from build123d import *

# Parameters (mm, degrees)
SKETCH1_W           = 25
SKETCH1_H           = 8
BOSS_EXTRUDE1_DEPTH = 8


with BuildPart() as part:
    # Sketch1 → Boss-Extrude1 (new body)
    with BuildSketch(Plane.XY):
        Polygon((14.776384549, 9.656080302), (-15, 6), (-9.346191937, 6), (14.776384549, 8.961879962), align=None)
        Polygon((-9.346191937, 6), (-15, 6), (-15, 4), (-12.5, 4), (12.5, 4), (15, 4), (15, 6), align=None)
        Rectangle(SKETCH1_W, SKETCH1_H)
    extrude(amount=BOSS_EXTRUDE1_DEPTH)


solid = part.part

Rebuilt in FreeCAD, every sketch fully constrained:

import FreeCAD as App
import Part
import Sketcher

V = App.Vector
Q = App.Units.Quantity

doc = App.newDocument("Part")
body = doc.addObject("PartDesign::Body", "Body")

# Sketch on XY plane
sketch1 = body.newObject("Sketcher::SketchObject", "Sketch")
sketch1.AttachmentSupport = (doc.getObject("XY_Plane"), [""])
sketch1.MapMode = "FlatFace"
sketch1.addGeometry([
    Part.LineSegment(V(14.8, 9.7, 0), V(-15, 6, 0)),  # 0
    Part.LineSegment(V(-15, 6, 0), V(-15, 4, 0)),  # 1
    Part.LineSegment(V(-15, 4, 0), V(-12.5, 4, 0)),  # 2
    Part.LineSegment(V(-12.5, 4, 0), V(-12.5, -4, 0)),  # 3
    Part.LineSegment(V(-12.5, -4, 0), V(12.5, -4, 0)),  # 4
    Part.LineSegment(V(12.5, -4, 0), V(12.5, 4, 0)),  # 5
    Part.LineSegment(V(12.5, 4, 0), V(15, 4, 0)),  # 6
    Part.LineSegment(V(15, 4, 0), V(15, 6, 0)),  # 7
    Part.LineSegment(V(15, 6, 0), V(-9.3, 6, 0)),  # 8
    Part.LineSegment(V(-9.3, 6, 0), V(14.8, 9, 0)),  # 9
    Part.LineSegment(V(14.8, 9, 0), V(14.8, 9.7, 0)),  # 10
], False)
sketch1.addConstraint([
    Sketcher.Constraint("Coincident", 0, 2, 1, 1),
    Sketcher.Constraint("Coincident", 1, 2, 2, 1),
    Sketcher.Constraint("Coincident", 2, 2, 3, 1),
    Sketcher.Constraint("Coincident", 3, 2, 4, 1),
    Sketcher.Constraint("Coincident", 4, 2, 5, 1),
    Sketcher.Constraint("Coincident", 5, 2, 6, 1),
    Sketcher.Constraint("Coincident", 6, 2, 7, 1),
    Sketcher.Constraint("Coincident", 7, 2, 8, 1),
    Sketcher.Constraint("Coincident", 8, 2, 9, 1),
    Sketcher.Constraint("Coincident", 9, 2, 10, 1),
    Sketcher.Constraint("Coincident", 10, 2, 0, 1),
    Sketcher.Constraint("Vertical", 1),
    Sketcher.Constraint("Horizontal", 2),
    Sketcher.Constraint("Vertical", 3),
    Sketcher.Constraint("Horizontal", 4),
    Sketcher.Constraint("Vertical", 5),
    Sketcher.Constraint("Horizontal", 6),
    Sketcher.Constraint("Vertical", 7),
    Sketcher.Constraint("Horizontal", 8),
    Sketcher.Constraint("Vertical", 10),
    Sketcher.Constraint("Symmetric", 2, 2, 4, 2, -1, 1),
    Sketcher.Constraint("Symmetric", 1, 2, 6, 2, -2),
    Sketcher.Constraint("Parallel", 0, 9),
    Sketcher.Constraint("Horizontal", 0, 2, 7, 2),
    Sketcher.Constraint("DistanceX", 4, 1, 4, 2, Q("25 mm")),
    Sketcher.Constraint("DistanceY", 1, 2, 1, 1, Q("2 mm")),
    Sketcher.Constraint("DistanceY", 3, 2, 3, 1, Q("8 mm")),
    Sketcher.Constraint("Angle", 0, Q("-173 deg")),
    Sketcher.Constraint("Distance", 0, Q("30 mm")),
    Sketcher.Constraint("DistanceX", 2, 1, 2, 2, Q("2.5 mm")),
    Sketcher.Constraint("DistanceY", 10, 1, 10, 2, Q("0.6942 mm")),
])
pad1 = body.newObject("PartDesign::Pad", "Pad")
pad1.Profile = sketch1
pad1.Length = 8

doc.recompute()
